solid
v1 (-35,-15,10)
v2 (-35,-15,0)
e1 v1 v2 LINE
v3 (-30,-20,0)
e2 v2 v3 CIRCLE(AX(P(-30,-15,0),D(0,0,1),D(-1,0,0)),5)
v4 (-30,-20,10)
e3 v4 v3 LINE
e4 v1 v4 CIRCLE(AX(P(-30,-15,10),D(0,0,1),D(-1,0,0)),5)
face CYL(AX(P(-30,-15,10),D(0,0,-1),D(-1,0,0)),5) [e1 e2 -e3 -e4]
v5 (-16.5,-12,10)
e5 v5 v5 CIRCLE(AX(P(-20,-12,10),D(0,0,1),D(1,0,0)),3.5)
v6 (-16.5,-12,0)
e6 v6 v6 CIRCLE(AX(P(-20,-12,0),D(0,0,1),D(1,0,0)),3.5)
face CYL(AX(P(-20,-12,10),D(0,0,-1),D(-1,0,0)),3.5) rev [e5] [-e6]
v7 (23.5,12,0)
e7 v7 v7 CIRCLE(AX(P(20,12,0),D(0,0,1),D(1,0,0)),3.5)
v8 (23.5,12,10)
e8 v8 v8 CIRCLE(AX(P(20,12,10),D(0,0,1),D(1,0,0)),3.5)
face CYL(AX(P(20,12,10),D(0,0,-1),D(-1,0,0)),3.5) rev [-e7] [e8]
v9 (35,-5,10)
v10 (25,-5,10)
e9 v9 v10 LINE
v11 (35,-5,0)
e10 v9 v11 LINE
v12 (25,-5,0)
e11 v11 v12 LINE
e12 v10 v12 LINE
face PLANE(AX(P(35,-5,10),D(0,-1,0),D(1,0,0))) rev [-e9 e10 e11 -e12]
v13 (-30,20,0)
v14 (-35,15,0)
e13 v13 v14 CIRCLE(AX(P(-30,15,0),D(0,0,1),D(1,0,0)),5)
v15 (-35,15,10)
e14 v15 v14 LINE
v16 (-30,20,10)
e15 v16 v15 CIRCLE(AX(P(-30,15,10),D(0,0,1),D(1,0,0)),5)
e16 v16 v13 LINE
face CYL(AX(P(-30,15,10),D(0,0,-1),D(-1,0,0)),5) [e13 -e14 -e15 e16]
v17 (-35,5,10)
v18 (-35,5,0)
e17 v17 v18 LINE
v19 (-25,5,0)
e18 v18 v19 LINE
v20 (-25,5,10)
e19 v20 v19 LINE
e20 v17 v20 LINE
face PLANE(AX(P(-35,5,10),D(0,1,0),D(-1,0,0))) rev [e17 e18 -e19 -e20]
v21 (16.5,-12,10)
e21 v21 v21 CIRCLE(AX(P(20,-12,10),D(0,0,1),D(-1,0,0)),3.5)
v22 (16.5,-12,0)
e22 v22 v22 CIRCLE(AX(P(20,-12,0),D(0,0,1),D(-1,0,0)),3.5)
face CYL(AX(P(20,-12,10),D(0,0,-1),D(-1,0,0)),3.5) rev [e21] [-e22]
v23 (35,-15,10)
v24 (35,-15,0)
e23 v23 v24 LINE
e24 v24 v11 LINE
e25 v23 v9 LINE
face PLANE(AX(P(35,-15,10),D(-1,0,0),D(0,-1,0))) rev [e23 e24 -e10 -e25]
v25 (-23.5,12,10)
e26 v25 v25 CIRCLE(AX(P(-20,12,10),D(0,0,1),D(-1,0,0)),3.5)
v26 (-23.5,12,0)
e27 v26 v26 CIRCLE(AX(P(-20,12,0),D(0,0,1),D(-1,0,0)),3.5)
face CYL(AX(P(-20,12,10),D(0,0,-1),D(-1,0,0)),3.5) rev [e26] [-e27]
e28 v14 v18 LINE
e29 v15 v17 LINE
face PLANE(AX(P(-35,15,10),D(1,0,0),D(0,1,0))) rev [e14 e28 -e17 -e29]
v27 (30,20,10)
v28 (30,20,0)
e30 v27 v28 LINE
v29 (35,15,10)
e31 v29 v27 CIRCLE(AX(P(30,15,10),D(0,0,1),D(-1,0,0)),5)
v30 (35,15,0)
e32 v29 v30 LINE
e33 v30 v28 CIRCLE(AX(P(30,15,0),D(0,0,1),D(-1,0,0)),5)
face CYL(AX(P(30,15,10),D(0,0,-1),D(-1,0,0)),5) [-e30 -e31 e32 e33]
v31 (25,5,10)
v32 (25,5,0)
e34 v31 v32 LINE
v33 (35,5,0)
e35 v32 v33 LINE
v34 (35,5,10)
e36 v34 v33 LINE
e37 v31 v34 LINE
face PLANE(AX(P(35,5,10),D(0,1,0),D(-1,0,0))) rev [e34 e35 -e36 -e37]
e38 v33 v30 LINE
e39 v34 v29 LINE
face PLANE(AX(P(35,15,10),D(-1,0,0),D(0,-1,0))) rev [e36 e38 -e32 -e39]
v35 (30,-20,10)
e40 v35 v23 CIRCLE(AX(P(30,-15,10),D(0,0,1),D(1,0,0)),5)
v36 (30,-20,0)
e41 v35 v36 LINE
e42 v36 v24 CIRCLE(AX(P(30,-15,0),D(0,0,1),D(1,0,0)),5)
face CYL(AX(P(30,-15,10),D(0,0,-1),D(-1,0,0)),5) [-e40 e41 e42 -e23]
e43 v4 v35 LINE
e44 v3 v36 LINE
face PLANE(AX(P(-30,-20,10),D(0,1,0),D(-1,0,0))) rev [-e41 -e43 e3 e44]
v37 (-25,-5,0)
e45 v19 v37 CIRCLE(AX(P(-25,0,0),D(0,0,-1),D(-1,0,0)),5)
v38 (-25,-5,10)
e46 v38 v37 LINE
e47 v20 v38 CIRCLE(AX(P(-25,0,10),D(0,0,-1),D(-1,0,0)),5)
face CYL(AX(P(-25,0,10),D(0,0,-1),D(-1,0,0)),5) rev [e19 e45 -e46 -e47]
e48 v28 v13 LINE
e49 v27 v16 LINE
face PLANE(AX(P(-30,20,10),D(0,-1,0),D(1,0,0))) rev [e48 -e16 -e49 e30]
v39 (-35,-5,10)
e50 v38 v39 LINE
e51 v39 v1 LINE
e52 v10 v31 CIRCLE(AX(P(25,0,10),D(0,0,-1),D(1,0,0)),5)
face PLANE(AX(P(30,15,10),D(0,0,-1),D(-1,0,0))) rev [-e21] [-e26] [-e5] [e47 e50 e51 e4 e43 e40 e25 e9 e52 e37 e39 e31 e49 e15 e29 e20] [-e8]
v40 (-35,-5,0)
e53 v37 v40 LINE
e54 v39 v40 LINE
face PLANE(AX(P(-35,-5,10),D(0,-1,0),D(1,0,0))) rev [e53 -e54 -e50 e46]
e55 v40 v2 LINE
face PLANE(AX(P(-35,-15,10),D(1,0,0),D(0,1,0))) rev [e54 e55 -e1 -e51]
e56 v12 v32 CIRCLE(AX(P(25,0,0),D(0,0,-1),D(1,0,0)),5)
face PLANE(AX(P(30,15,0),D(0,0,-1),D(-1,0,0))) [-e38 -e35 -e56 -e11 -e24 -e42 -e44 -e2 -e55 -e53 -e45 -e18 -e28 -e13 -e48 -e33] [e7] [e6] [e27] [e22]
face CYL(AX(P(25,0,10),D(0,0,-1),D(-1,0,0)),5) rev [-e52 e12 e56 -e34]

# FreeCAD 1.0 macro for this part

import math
import FreeCAD as App
import Part
import Sketcher
Q = App.Units.Quantity

doc = App.newDocument("Part")
body = doc.addObject("PartDesign::Body", "Body")

sketch1 = body.newObject("Sketcher::SketchObject", "Sketch")
sketch1.AttachmentSupport = (doc.getObject("XY_Plane"), [""])
sketch1.MapMode = "FlatFace"
sketch1.addGeometry([
    Part.LineSegment(App.Vector(30, 20, 0), App.Vector(-30, 20, 0)),
    Part.ArcOfCircle(Part.Circle(App.Vector(-30, 15, 0), App.Vector(0, 0, 1), 5), math.radians(90), math.radians(180)),
    Part.LineSegment(App.Vector(-35, 15, 0), App.Vector(-35, 5, 0)),
    Part.LineSegment(App.Vector(-35, 5, 0), App.Vector(-25, 5, 0)),
    Part.ArcOfCircle(Part.Circle(App.Vector(-25, 0, 0), App.Vector(0, 0, 1), 5), math.radians(-90), math.radians(90)),
    Part.LineSegment(App.Vector(-25, -5, 0), App.Vector(-35, -5, 0)),
    Part.LineSegment(App.Vector(-35, -5, 0), App.Vector(-35, -15, 0)),
    Part.ArcOfCircle(Part.Circle(App.Vector(-30, -15, 0), App.Vector(0, 0, 1), 5), math.radians(180), math.radians(270)),
    Part.LineSegment(App.Vector(-30, -20, 0), App.Vector(30, -20, 0)),
    Part.ArcOfCircle(Part.Circle(App.Vector(30, -15, 0), App.Vector(0, 0, 1), 5), math.radians(-90), math.radians(0)),
    Part.LineSegment(App.Vector(35, -15, 0), App.Vector(35, -5, 0)),
    Part.LineSegment(App.Vector(35, -5, 0), App.Vector(25, -5, 0)),
    Part.ArcOfCircle(Part.Circle(App.Vector(25, 0, 0), App.Vector(0, 0, 1), 5), math.radians(90), math.radians(270)),
    Part.LineSegment(App.Vector(25, 5, 0), App.Vector(35, 5, 0)),
    Part.LineSegment(App.Vector(35, 5, 0), App.Vector(35, 15, 0)),
    Part.ArcOfCircle(Part.Circle(App.Vector(30, 15, 0), App.Vector(0, 0, 1), 5), math.radians(0), math.radians(90)),
    Part.Circle(App.Vector(20, -12, 0), App.Vector(0, 0, 1), 3.5),
    Part.Circle(App.Vector(-20, -12, 0), App.Vector(0, 0, 1), 3.5),
    Part.Circle(App.Vector(20, 12, 0), App.Vector(0, 0, 1), 3.5),
    Part.Circle(App.Vector(-20, 12, 0), App.Vector(0, 0, 1), 3.5),
], False)
sketch1.addConstraint([
    Sketcher.Constraint("Tangent", 0, 2, 1, 1),
    Sketcher.Constraint("Tangent", 1, 2, 2, 1),
    Sketcher.Constraint("Coincident", 2, 2, 3, 1),
    Sketcher.Constraint("Tangent", 3, 2, 4, 2),
    Sketcher.Constraint("Tangent", 4, 1, 5, 1),
    Sketcher.Constraint("Coincident", 5, 2, 6, 1),
    Sketcher.Constraint("Tangent", 6, 2, 7, 1),
    Sketcher.Constraint("Tangent", 7, 2, 8, 1),
    Sketcher.Constraint("Tangent", 8, 2, 9, 1),
    Sketcher.Constraint("Tangent", 9, 2, 10, 1),
    Sketcher.Constraint("Coincident", 10, 2, 11, 1),
    Sketcher.Constraint("Tangent", 11, 2, 12, 2),
    Sketcher.Constraint("Tangent", 12, 1, 13, 1),
    Sketcher.Constraint("Coincident", 13, 2, 14, 1),
    Sketcher.Constraint("Tangent", 14, 2, 15, 1),
    Sketcher.Constraint("Tangent", 15, 2, 0, 1),
    Sketcher.Constraint("Horizontal", 0),
    Sketcher.Constraint("Vertical", 2),
    Sketcher.Constraint("Horizontal", 3),
    Sketcher.Constraint("Horizontal", 5),
    Sketcher.Constraint("Vertical", 6),
    Sketcher.Constraint("Horizontal", 8),
    Sketcher.Constraint("Vertical", 10),
    Sketcher.Constraint("Horizontal", 11),
    Sketcher.Constraint("Horizontal", 13),
    Sketcher.Constraint("Vertical", 14),
    Sketcher.Constraint("Equal", 1, 4),
    Sketcher.Constraint("Equal", 4, 7),
    Sketcher.Constraint("Equal", 7, 9),
    Sketcher.Constraint("Equal", 9, 12),
    Sketcher.Constraint("Equal", 12, 15),
    Sketcher.Constraint("Equal", 16, 17),
    Sketcher.Constraint("Equal", 17, 18),
    Sketcher.Constraint("Equal", 18, 19),
    Sketcher.Constraint("Symmetric", 1, 3, 9, 3, -1, 1),
    Sketcher.Constraint("Symmetric", 4, 3, 12, 3, -1, 1),
    Sketcher.Constraint("Symmetric", 17, 3, 18, 3, -1, 1),
    Sketcher.Constraint("Symmetric", 16, 3, 19, 3, -1, 1),
    Sketcher.Constraint("Symmetric", 16, 3, 17, 3, -2),
    Sketcher.Constraint("Symmetric", 5, 2, 10, 2, -2),
    Sketcher.Constraint("Vertical", 9, 3, 15, 3),
    Sketcher.Constraint("Equal", 13, 2),
    Sketcher.Constraint("Diameter", 16, Q("7 mm")),
    Sketcher.Constraint("Radius", 1, Q("5 mm")),
    Sketcher.Constraint("DistanceX", 0, 2, 0, 1, Q("60 mm")),
    Sketcher.Constraint("DistanceX", 3, 1, 3, 2, Q("10 mm")),
    Sketcher.Constraint("DistanceX", -1, 1, 16, 3, Q("20 mm")),
    Sketcher.Constraint("DistanceY", 16, 3, -1, 1, Q("12 mm")),
])
pad1 = body.newObject("PartDesign::Pad", "Pad")
pad1.Profile = sketch1
pad1.Length = 10

doc.recompute()
